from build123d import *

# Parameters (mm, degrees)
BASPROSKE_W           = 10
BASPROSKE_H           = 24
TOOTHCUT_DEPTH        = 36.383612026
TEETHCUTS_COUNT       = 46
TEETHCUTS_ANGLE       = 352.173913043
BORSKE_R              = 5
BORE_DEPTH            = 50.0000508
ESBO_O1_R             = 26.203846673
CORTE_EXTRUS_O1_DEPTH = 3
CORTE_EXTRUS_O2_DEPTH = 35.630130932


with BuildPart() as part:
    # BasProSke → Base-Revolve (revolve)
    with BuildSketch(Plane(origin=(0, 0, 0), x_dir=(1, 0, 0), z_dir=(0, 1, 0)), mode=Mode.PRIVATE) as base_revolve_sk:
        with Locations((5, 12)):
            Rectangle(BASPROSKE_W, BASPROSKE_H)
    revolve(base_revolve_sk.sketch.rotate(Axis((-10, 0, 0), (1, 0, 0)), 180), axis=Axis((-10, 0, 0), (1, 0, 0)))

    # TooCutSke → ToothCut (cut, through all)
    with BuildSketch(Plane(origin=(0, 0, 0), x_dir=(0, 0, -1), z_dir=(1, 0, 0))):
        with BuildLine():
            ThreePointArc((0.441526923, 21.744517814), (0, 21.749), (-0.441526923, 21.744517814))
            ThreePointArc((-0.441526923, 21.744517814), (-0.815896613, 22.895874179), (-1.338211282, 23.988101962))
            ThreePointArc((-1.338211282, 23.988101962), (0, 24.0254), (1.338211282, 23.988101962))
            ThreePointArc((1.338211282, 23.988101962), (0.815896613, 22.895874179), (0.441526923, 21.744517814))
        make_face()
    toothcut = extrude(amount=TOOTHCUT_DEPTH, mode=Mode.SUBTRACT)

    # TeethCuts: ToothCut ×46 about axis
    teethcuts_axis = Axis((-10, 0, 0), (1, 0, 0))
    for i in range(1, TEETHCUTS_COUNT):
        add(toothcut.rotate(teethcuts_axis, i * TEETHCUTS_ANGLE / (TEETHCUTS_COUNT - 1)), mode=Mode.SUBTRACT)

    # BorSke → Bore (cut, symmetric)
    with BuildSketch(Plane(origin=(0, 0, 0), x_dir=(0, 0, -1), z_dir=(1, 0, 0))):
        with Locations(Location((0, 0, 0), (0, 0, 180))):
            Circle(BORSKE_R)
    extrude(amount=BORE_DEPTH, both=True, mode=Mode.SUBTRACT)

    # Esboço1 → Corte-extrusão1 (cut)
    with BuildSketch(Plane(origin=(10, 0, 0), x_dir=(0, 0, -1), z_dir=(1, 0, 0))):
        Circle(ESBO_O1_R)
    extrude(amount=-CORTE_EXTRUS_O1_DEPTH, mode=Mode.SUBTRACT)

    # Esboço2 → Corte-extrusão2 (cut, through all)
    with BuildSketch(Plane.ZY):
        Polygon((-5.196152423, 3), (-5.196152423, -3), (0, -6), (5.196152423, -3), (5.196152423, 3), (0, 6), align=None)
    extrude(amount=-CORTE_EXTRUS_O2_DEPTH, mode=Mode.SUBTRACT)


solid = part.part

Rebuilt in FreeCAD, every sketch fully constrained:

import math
import FreeCAD as App
import Part
import Sketcher

V = App.Vector
Q = App.Units.Quantity


def add_polygon(sketch, points):
    """Adds a closed chain of lines whose ends are joined by coincident constraints."""
    first, n = sketch.GeometryCount, len(points)
    for a, b in zip(points, points[1:] + points[:1]):
        sketch.addGeometry(Part.LineSegment(App.Vector(*a, 0), App.Vector(*b, 0)), False)
    for i in range(n):
        sketch.addConstraint(Sketcher.Constraint("Coincident", first + i, 2, first + (i + 1) % n, 1))

doc = App.newDocument("Part")
body = doc.addObject("PartDesign::Body", "Body")

sketch1 = body.newObject("Sketcher::SketchObject", "Sketch")
sketch1.AttachmentSupport = (doc.getObject("XZ_Plane"), [""])
sketch1.MapMode = "FlatFace"
add_polygon(sketch1, [(0, -24), (0, 0), (10, 0), (10, -24)])
sketch1.addConstraint([
    Sketcher.Constraint("Vertical", 0),
    Sketcher.Constraint("Horizontal", 1),
    Sketcher.Constraint("Vertical", 2),
    Sketcher.Constraint("Horizontal", 3),
    Sketcher.Constraint("Coincident", 0, 2, -1, 1),
    Sketcher.Constraint("DistanceX", 1, 1, 1, 2, 10.0),
    Sketcher.Constraint("DistanceY", 0, 1, 0, 2, 24.0),
])
revolution = body.newObject("PartDesign::Revolution", "Revolution")
revolution.Profile = sketch1
revolution.ReferenceAxis = (sketch1, ["H_Axis"])
revolution.Angle = 360

sketch2 = body.newObject("Sketcher::SketchObject", "Sketch001")
sketch2.AttachmentSupport = (doc.getObject("YZ_Plane"), [""])
sketch2.MapMode = "FlatFace"
sketch2.addGeometry([
    Part.ArcOfCircle(Part.Circle(V(0, 0, 0), V(0, 0, 1), 21.7), math.radians(-1.16), math.radians(1.16)),
    Part.ArcOfCircle(Part.Circle(V(19.5, -9.4, 0), V(0, 0, 1), 9.2), math.radians(60.67), math.radians(75.76)),
    Part.ArcOfCircle(Part.Circle(V(0, 0, 0), V(0, 0, 1), 24), math.radians(-3.19), math.radians(3.19)),
    Part.ArcOfCircle(Part.Circle(V(19.5, 9.4, 0), V(0, 0, 1), 9.2), math.radians(-75.76), math.radians(-60.67)),
], False)
sketch2.addConstraint([
    Sketcher.Constraint("Coincident", 0, 1, 1, 2),
    Sketcher.Constraint("Coincident", 1, 1, 2, 1),
    Sketcher.Constraint("Coincident", 2, 2, 3, 2),
    Sketcher.Constraint("Coincident", 3, 1, 0, 2),
    Sketcher.Constraint("Coincident", 0, 3, -1, 1),
    Sketcher.Constraint("Coincident", 2, 3, -1, 1),
    Sketcher.Constraint("Equal", 1, 3),
    Sketcher.Constraint("Symmetric", 1, 3, 3, 3, -1),
    Sketcher.Constraint("Radius", 1, 9.2),
    Sketcher.Constraint("Radius", 0, 21.748999),
    Sketcher.Constraint("Radius", 2, 24.0254),
    Sketcher.Constraint("DistanceX", -1, 1, 1, 1, 23.988102),
    Sketcher.Constraint("DistanceX", -1, 1, 1, 3, 19.48154),
])
pocket1 = body.newObject("PartDesign::Pocket", "Pocket")
pocket1.Profile = sketch2
pocket1.Type = "ThroughAll"
pocket1.Reversed = True
doc.recompute()

polarpattern = body.newObject("PartDesign::PolarPattern", "PolarPattern")
polarpattern.Originals = [pocket1]
polarpattern.Axis = (doc.getObject("X_Axis"), [""])
polarpattern.Angle = 360
polarpattern.Occurrences = 46
body.Tip = polarpattern

sketch3 = body.newObject("Sketcher::SketchObject", "Sketch002")
sketch3.AttachmentSupport = (doc.getObject("YZ_Plane"), [""])
sketch3.MapMode = "FlatFace"
sketch3.addGeometry(Part.Circle(V(0, 0, 0), V(0, 0, 1), 5), False)
sketch3.addConstraint([
    Sketcher.Constraint("Coincident", 0, 3, -1, 1),
    Sketcher.Constraint("Diameter", 0, 10.0),
])
pocket2 = body.newObject("PartDesign::Pocket", "Pocket001")
pocket2.Profile = sketch3
pocket2.Length = 100.000102
pocket2.Midplane = True

sketch4 = body.newObject("Sketcher::SketchObject", "Sketch003")
sketch4.AttachmentSupport = (doc.getObject("YZ_Plane"), [""])
sketch4.MapMode = "FlatFace"
sketch4.AttachmentOffset = App.Placement(V(0, 0, 10), App.Rotation())
sketch4.addGeometry(Part.Circle(V(0, 0, 0), V(0, 0, 1), 26), False)
sketch4.addConstraint([
    Sketcher.Constraint("Coincident", 0, 3, -1, 1),
    Sketcher.Constraint("Diameter", 0, 52.407693),
])
pocket3 = body.newObject("PartDesign::Pocket", "Pocket002")
pocket3.Profile = sketch4
pocket3.Length = 3

sketch5 = body.newObject("Sketcher::SketchObject", "Sketch004")
sketch5.AttachmentSupport = (doc.getObject("YZ_Plane"), [""])
sketch5.MapMode = "FlatFace"
add_polygon(sketch5, [(3, -5), (-3, -5), (-6, 0), (-3, 5), (3, 5), (6, 0)])
sketch5.addConstraint([
    Sketcher.Constraint("Horizontal", 0),
    Sketcher.Constraint("Horizontal", 3),
    Sketcher.Constraint("Symmetric", 0, 2, 3, 2, -1, 1),
    Sketcher.Constraint("Symmetric", 1, 2, 4, 2, -1, 1),
    Sketcher.Constraint("PointOnObject", 1, 2, -1),
    Sketcher.Constraint("Parallel", 2, 5),
    Sketcher.Constraint("Vertical", 0, 2, 2, 2),
    Sketcher.Constraint("DistanceX", 0, 2, 0, 1, 6.0),
    Sketcher.Constraint("Angle", 1, Q("120 deg")),
    Sketcher.Constraint("Distance", 1, 6.0),
])
pocket4 = body.newObject("PartDesign::Pocket", "Pocket003")
pocket4.Profile = sketch5
pocket4.Type = "ThroughAll"
pocket4.Reversed = True

doc.recompute()
